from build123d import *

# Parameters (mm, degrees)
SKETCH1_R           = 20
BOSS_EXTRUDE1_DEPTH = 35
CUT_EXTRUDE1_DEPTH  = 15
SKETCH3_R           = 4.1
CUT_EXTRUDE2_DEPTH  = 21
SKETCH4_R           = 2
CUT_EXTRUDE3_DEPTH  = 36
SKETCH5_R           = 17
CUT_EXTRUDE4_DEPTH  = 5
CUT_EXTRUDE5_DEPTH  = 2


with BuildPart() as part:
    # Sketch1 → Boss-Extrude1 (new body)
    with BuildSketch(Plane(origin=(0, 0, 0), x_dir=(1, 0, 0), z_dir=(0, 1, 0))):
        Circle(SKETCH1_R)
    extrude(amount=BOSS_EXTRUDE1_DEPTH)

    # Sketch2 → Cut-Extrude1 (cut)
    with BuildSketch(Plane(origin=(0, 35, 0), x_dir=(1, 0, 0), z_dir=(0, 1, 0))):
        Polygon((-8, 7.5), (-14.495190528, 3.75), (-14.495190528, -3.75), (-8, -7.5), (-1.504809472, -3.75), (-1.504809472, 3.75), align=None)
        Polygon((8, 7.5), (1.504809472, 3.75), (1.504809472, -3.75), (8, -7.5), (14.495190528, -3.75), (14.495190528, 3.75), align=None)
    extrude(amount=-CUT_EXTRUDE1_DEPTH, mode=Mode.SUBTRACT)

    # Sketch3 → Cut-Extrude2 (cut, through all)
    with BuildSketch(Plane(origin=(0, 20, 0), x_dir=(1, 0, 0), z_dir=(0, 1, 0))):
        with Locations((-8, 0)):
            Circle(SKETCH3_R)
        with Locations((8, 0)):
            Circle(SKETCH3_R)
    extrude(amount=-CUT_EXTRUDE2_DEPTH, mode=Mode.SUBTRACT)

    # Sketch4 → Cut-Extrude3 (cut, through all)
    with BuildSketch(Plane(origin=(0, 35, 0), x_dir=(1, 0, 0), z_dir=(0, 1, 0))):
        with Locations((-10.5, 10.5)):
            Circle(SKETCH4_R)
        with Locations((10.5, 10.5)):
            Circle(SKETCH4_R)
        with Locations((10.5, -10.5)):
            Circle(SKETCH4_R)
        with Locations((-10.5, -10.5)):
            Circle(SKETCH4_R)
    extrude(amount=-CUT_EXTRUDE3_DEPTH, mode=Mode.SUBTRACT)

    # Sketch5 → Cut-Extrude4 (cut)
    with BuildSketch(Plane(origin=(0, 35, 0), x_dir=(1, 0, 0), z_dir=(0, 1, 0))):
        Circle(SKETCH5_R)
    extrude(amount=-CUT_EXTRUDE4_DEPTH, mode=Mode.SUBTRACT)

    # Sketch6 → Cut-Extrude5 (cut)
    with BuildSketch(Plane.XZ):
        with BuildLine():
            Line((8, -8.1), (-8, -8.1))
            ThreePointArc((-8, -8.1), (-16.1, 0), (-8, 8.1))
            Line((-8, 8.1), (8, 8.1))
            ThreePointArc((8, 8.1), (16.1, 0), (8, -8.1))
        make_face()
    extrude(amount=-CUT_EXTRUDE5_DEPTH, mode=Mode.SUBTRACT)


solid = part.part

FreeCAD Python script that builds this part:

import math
import FreeCAD as App
import Part
import Sketcher

V = App.Vector
Q = App.Units.Quantity

doc = App.newDocument("Part")
params = doc.addObject("Spreadsheet::Sheet", "Params")
for row, (alias, value) in enumerate([
    ("sketch1_diameter", "40 mm"),
    ("pad1_length", "35 mm"),
    ("sketch2_height", "7.5 mm"),
    ("pocket1_length", "15 mm"),
    ("sketch3_diameter", "8.2 mm"),
    ("sketch4_diameter", "4 mm"),
    ("sketch5_diameter", "34 mm"),
    ("pocket4_length", "5 mm"),
    ("sketch6_radius", "8.1 mm"),
    ("sketch6_width", "16 mm"),
    ("pocket5_length", "2 mm"),
], start=1):
    params.set(f"A{row}", alias)
    params.set(f"B{row}", "=" + value)
    params.setAlias(f"B{row}", alias)

body = doc.addObject("PartDesign::Body", "Body")

# Sketch on XZ plane
sketch1 = doc.addObject("Sketcher::SketchObject", "Sketch")
body.addObject(sketch1)
sketch1.AttachmentSupport = (doc.XZ_Plane, [""])
sketch1.MapMode = "FlatFace"
sketch1.addGeometry(Part.Circle(V(0, 0, 0), V(0, 0, 1), 20), False)
sketch1.addConstraint([
    Sketcher.Constraint("Coincident", 0, 3, -1, 1),
    Sketcher.Constraint("Diameter", 0, Q("40 mm")),
])
sketch1.setExpression("Constraints[1]", "Params.sketch1_diameter")
pad1 = doc.addObject("PartDesign::Pad", "Pad")
body.addObject(pad1)
pad1.Profile = sketch1
pad1.setExpression("Length", "Params.pad1_length")
pad1.Reversed = True

# Sketch on XZ plane
sketch2 = doc.addObject("Sketcher::SketchObject", "Sketch001")
body.addObject(sketch2)
sketch2.AttachmentSupport = (doc.XZ_Plane, [""])
sketch2.MapMode = "FlatFace"
sketch2.AttachmentOffset = App.Placement(V(0, 0, -35), App.Rotation())
sketch2.addGeometry([
    Part.LineSegment(V(-8, -8, 0), V(-14, -4, 0)),  # 0
    Part.LineSegment(V(-14, -4, 0), V(-14, 4, 0)),  # 1
    Part.LineSegment(V(-14, 4, 0), V(-8, 8, 0)),  # 2
    Part.LineSegment(V(-8, 8, 0), V(-2, 4, 0)),  # 3
    Part.LineSegment(V(-2, 4, 0), V(-2, -4, 0)),  # 4
    Part.LineSegment(V(-2, -4, 0), V(-8, -8, 0)),  # 5
    Part.LineSegment(V(8, -8, 0), V(2, -4, 0)),  # 6
    Part.LineSegment(V(2, -4, 0), V(2, 4, 0)),  # 7
    Part.LineSegment(V(2, 4, 0), V(8, 8, 0)),  # 8
    Part.LineSegment(V(8, 8, 0), V(14, 4, 0)),  # 9
    Part.LineSegment(V(14, 4, 0), V(14, -4, 0)),  # 10
    Part.LineSegment(V(14, -4, 0), V(8, -8, 0)),  # 11
], False)
sketch2.addConstraint([
    Sketcher.Constraint("Coincident", 0, 2, 1, 1),
    Sketcher.Constraint("Coincident", 1, 2, 2, 1),
    Sketcher.Constraint("Coincident", 2, 2, 3, 1),
    Sketcher.Constraint("Coincident", 3, 2, 4, 1),
    Sketcher.Constraint("Coincident", 4, 2, 5, 1),
    Sketcher.Constraint("Coincident", 5, 2, 0, 1),
    Sketcher.Constraint("Coincident", 6, 2, 7, 1),
    Sketcher.Constraint("Coincident", 7, 2, 8, 1),
    Sketcher.Constraint("Coincident", 8, 2, 9, 1),
    Sketcher.Constraint("Coincident", 9, 2, 10, 1),
    Sketcher.Constraint("Coincident", 10, 2, 11, 1),
    Sketcher.Constraint("Coincident", 11, 2, 6, 1),
    Sketcher.Constraint("Vertical", 1),
    Sketcher.Constraint("Vertical", 4),
    Sketcher.Constraint("Vertical", 7),
    Sketcher.Constraint("Vertical", 10),
    Sketcher.Constraint("Symmetric", 3, 2, 6, 2, -1, 1),
    Sketcher.Constraint("Symmetric", 5, 2, 8, 2, -1, 1),
    Sketcher.Constraint("Symmetric", 0, 2, 9, 2, -1, 1),
    Sketcher.Constraint("Symmetric", 2, 2, 11, 2, -1, 1),
    Sketcher.Constraint("Symmetric", 2, 2, 8, 2, -2),
    Sketcher.Constraint("Parallel", 0, 3),
    Sketcher.Constraint("Parallel", 2, 5),
    Sketcher.Constraint("Parallel", 5, 8),
    Sketcher.Constraint("Parallel", 8, 11),
    Sketcher.Constraint("Horizontal", 1, 2, 3, 2),
    Sketcher.Constraint("Horizontal", 0, 2, 4, 2),
    Sketcher.Constraint("Angle", 0, Q("150 deg")),
    Sketcher.Constraint("DistanceY", 1, 1, 1, 2, Q("7.5 mm")),
    Sketcher.Constraint("DistanceX", 2, 2, -1, 1, Q("8 mm")),
    Sketcher.Constraint("DistanceY", 5, 2, 2, 2, Q("15 mm")),
])
sketch2.setExpression("Constraints[28]", "Params.sketch2_height")
pocket1 = doc.addObject("PartDesign::Pocket", "Pocket")
body.addObject(pocket1)
pocket1.Profile = sketch2
pocket1.setExpression("Length", "Params.pocket1_length")
pocket1.Reversed = True

# Sketch on XZ plane
sketch3 = doc.addObject("Sketcher::SketchObject", "Sketch002")
body.addObject(sketch3)
sketch3.AttachmentSupport = (doc.XZ_Plane, [""])
sketch3.MapMode = "FlatFace"
sketch3.AttachmentOffset = App.Placement(V(0, 0, -20), App.Rotation())
sketch3.addGeometry([
    Part.Circle(V(-8, 0, 0), V(0, 0, 1), 4.1),
    Part.Circle(V(8, 0, 0), V(0, 0, 1), 4.1),
], False)
sketch3.addConstraint([
    Sketcher.Constraint("Equal", 0, 1),
    Sketcher.Constraint("Symmetric", 0, 3, 1, 3, -1, 1),
    Sketcher.Constraint("PointOnObject", 0, 3, -1),
    Sketcher.Constraint("Diameter", 0, Q("8.2 mm")),
    Sketcher.Constraint("DistanceX", 0, 3, -1, 1, Q("8 mm")),
])
sketch3.setExpression("Constraints[3]", "Params.sketch3_diameter")
pocket2 = doc.addObject("PartDesign::Pocket", "Pocket001")
body.addObject(pocket2)
pocket2.Profile = sketch3
pocket2.Type = "ThroughAll"
pocket2.Reversed = True

# Sketch on XZ plane
sketch4 = doc.addObject("Sketcher::SketchObject", "Sketch003")
body.addObject(sketch4)
sketch4.AttachmentSupport = (doc.XZ_Plane, [""])
sketch4.MapMode = "FlatFace"
sketch4.AttachmentOffset = App.Placement(V(0, 0, -35), App.Rotation())
sketch4.addGeometry([
    Part.Circle(V(-10.5, -10.5, 0), V(0, 0, 1), 2),
    Part.Circle(V(10.5, -10.5, 0), V(0, 0, 1), 2),
    Part.Circle(V(10.5, 10.5, 0), V(0, 0, 1), 2),
    Part.Circle(V(-10.5, 10.5, 0), V(0, 0, 1), 2),
], False)
sketch4.addConstraint([
    Sketcher.Constraint("Equal", 0, 1),
    Sketcher.Constraint("Equal", 1, 2),
    Sketcher.Constraint("Equal", 2, 3),
    Sketcher.Constraint("Symmetric", 0, 3, 2, 3, -1, 1),
    Sketcher.Constraint("Symmetric", 1, 3, 3, 3, -1, 1),
    Sketcher.Constraint("Symmetric", 0, 3, 1, 3, -2),
    Sketcher.Constraint("Diameter", 0, Q("4 mm")),
    Sketcher.Constraint("DistanceX", 0, 3, 1, 3, Q("21 mm")),
    Sketcher.Constraint("DistanceY", 1, 3, 2, 3, Q("21 mm")),
])
sketch4.setExpression("Constraints[6]", "Params.sketch4_diameter")
pocket3 = doc.addObject("PartDesign::Pocket", "Pocket002")
body.addObject(pocket3)
pocket3.Profile = sketch4
pocket3.Type = "ThroughAll"
pocket3.Reversed = True

# Sketch on XZ plane
sketch5 = doc.addObject("Sketcher::SketchObject", "Sketch004")
body.addObject(sketch5)
sketch5.AttachmentSupport = (doc.XZ_Plane, [""])
sketch5.MapMode = "FlatFace"
sketch5.AttachmentOffset = App.Placement(V(0, 0, -35), App.Rotation())
sketch5.addGeometry(Part.Circle(V(0, 0, 0), V(0, 0, 1), 17), False)
sketch5.addConstraint([
    Sketcher.Constraint("Coincident", 0, 3, -1, 1),
    Sketcher.Constraint("Diameter", 0, Q("34 mm")),
])
sketch5.setExpression("Constraints[1]", "Params.sketch5_diameter")
pocket4 = doc.addObject("PartDesign::Pocket", "Pocket003")
body.addObject(pocket4)
pocket4.Profile = sketch5
pocket4.setExpression("Length", "Params.pocket4_length")
pocket4.Reversed = True

# Sketch on XZ plane
sketch6 = doc.addObject("Sketcher::SketchObject", "Sketch005")
body.addObject(sketch6)
sketch6.AttachmentSupport = (doc.XZ_Plane, [""])
sketch6.MapMode = "FlatFace"
sketch6.addGeometry([
    Part.LineSegment(V(-8, -8, 0), V(8, -8, 0)),
    Part.ArcOfCircle(Part.Circle(V(8, 0, 0), V(0, 0, 1), 8), math.radians(-90), math.radians(90)),
    Part.LineSegment(V(8, 8, 0), V(-8, 8, 0)),
    Part.ArcOfCircle(Part.Circle(V(-8, 0, 0), V(0, 0, 1), 8), math.radians(90), math.radians(270)),
], False)
sketch6.addConstraint([
    Sketcher.Constraint("Tangent", 0, 2, 1, 1),
    Sketcher.Constraint("Tangent", 1, 2, 2, 1),
    Sketcher.Constraint("Tangent", 2, 2, 3, 1),
    Sketcher.Constraint("Tangent", 3, 2, 0, 1),
    Sketcher.Constraint("Horizontal", 0),
    Sketcher.Constraint("Horizontal", 2),
    Sketcher.Constraint("Symmetric", 1, 3, 3, 3, -1, 1),
    Sketcher.Constraint("Radius", 1, Q("8.1 mm")),
    Sketcher.Constraint("DistanceX", 0, 1, 0, 2, Q("16 mm")),
])
sketch6.setExpression("Constraints[7]", "Params.sketch6_radius")
sketch6.setExpression("Constraints[8]", "Params.sketch6_width")
pocket5 = doc.addObject("PartDesign::Pocket", "Pocket004")
body.addObject(pocket5)
pocket5.Profile = sketch6
pocket5.setExpression("Length", "Params.pocket5_length")

doc.recompute()
